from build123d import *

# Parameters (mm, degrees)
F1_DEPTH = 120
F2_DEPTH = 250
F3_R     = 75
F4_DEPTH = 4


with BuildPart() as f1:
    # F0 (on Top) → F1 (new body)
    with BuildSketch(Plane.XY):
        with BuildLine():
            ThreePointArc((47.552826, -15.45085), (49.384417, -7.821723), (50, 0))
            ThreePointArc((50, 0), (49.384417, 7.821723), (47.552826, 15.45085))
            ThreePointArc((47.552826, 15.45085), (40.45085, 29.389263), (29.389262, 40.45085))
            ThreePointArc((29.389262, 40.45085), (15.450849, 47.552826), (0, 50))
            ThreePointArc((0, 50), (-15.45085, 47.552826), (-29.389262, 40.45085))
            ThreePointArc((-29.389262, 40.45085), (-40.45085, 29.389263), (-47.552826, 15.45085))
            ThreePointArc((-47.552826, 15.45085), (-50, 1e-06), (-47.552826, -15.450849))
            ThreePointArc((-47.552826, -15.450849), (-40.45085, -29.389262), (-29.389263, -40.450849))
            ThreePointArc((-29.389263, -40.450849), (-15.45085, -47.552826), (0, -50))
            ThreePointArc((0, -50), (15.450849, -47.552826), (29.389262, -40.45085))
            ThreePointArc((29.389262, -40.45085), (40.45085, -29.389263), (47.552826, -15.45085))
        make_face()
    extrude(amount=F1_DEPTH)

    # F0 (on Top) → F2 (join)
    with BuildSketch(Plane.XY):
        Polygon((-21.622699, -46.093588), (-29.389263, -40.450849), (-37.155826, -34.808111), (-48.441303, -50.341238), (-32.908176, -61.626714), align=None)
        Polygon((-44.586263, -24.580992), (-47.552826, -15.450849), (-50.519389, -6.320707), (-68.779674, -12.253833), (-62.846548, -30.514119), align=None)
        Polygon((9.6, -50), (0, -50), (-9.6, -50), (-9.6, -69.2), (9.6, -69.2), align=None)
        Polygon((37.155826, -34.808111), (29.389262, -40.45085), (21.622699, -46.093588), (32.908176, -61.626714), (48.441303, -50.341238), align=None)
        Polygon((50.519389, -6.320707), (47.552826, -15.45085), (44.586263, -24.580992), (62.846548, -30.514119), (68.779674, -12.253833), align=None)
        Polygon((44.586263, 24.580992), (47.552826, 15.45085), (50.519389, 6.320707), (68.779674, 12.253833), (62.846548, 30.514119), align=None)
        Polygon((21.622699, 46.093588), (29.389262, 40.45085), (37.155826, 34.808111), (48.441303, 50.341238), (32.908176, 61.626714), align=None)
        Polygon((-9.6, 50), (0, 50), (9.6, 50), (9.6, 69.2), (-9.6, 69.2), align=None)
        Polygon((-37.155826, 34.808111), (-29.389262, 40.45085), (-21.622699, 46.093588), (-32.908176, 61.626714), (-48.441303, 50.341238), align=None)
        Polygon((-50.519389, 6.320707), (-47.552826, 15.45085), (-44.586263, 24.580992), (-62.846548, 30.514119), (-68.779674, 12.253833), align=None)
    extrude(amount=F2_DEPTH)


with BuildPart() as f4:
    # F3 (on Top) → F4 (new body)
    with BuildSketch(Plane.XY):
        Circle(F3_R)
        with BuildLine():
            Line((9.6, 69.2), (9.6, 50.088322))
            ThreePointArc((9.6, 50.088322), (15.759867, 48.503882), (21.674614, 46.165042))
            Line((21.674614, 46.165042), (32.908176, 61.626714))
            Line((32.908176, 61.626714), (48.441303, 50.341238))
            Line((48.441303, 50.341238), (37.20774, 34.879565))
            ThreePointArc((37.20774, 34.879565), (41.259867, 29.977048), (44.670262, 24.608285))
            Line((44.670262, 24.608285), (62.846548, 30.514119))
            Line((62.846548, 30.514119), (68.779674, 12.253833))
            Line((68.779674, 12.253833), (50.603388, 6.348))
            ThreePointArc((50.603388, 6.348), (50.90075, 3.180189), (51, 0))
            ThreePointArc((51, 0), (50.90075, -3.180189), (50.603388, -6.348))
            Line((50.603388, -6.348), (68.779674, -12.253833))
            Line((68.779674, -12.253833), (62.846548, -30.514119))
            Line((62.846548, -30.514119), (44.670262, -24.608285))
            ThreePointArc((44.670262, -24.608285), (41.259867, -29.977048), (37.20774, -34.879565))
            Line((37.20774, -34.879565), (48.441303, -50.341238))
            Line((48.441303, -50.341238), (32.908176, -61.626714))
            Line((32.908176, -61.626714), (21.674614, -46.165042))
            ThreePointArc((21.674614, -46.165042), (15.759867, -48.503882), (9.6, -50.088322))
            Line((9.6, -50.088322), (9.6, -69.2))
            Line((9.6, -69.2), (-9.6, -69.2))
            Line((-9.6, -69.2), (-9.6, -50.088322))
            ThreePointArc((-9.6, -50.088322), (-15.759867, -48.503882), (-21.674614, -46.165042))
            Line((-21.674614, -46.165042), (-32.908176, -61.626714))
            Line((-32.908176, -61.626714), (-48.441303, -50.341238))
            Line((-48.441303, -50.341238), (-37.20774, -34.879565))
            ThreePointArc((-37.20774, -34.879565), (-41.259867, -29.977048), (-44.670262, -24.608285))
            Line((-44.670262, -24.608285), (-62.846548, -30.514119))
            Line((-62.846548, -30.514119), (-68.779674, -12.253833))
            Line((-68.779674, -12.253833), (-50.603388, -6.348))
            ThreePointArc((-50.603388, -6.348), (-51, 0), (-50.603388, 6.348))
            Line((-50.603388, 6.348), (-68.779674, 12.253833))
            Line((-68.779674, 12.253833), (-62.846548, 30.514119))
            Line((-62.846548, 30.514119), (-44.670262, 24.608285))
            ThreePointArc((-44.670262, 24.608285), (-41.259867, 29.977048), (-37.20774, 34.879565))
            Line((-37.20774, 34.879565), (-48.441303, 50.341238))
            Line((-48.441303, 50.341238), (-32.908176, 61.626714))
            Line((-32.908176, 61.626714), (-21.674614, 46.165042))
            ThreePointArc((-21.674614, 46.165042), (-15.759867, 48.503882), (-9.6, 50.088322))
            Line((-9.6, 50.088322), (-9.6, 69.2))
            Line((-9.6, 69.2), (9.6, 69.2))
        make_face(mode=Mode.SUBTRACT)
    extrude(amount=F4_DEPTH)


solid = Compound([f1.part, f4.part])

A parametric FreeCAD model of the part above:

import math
import FreeCAD as App
import Part
import Sketcher
Q = App.Units.Quantity

doc = App.newDocument("Part")
body = doc.addObject("PartDesign::Body", "Body")
body.AllowCompound = True

sketch1 = body.newObject("Sketcher::SketchObject", "Sketch")
sketch1.AttachmentSupport = (doc.getObject("XY_Plane"), [""])
sketch1.MapMode = "FlatFace"
sketch1.addGeometry([
    Part.ArcOfCircle(Part.Circle(App.Vector(0, 0, 0), App.Vector(0, 0, 1), 50), math.radians(-18), math.radians(0)),
    Part.ArcOfCircle(Part.Circle(App.Vector(0, 0, 0), App.Vector(0, 0, 1), 50), math.radians(0), math.radians(18)),
    Part.ArcOfCircle(Part.Circle(App.Vector(0, 0, 0), App.Vector(0, 0, 1), 50), math.radians(18), math.radians(54)),
    Part.ArcOfCircle(Part.Circle(App.Vector(0, 0, 0), App.Vector(0, 0, 1), 50), math.radians(54), math.radians(90)),
    Part.ArcOfCircle(Part.Circle(App.Vector(0, 0, 0), App.Vector(0, 0, 1), 50), math.radians(90), math.radians(126)),
    Part.ArcOfCircle(Part.Circle(App.Vector(0, 0, 0), App.Vector(0, 0, 1), 50), math.radians(126), math.radians(162)),
    Part.ArcOfCircle(Part.Circle(App.Vector(0, 0, 0), App.Vector(0, 0, 1), 50), math.radians(162), math.radians(198)),
    Part.ArcOfCircle(Part.Circle(App.Vector(0, 0, 0), App.Vector(0, 0, 1), 50), math.radians(-162), math.radians(-126)),
    Part.ArcOfCircle(Part.Circle(App.Vector(0, 0, 0), App.Vector(0, 0, 1), 50), math.radians(-126), math.radians(-90)),
    Part.ArcOfCircle(Part.Circle(App.Vector(0, 0, 0), App.Vector(0, 0, 1), 50), math.radians(-90), math.radians(-54)),
    Part.ArcOfCircle(Part.Circle(App.Vector(0, 0, 0), App.Vector(0, 0, 1), 50), math.radians(-54), math.radians(-18)),
], False)
sketch1.addConstraint([
    Sketcher.Constraint("Tangent", 0, 2, 1, 1),
    Sketcher.Constraint("Tangent", 1, 2, 2, 1),
    Sketcher.Constraint("Tangent", 2, 2, 3, 1),
    Sketcher.Constraint("Tangent", 3, 2, 4, 1),
    Sketcher.Constraint("Tangent", 4, 2, 5, 1),
    Sketcher.Constraint("Tangent", 5, 2, 6, 1),
    Sketcher.Constraint("Tangent", 6, 2, 7, 1),
    Sketcher.Constraint("Tangent", 7, 2, 8, 1),
    Sketcher.Constraint("Tangent", 8, 2, 9, 1),
    Sketcher.Constraint("Tangent", 9, 2, 10, 1),
    Sketcher.Constraint("Tangent", 10, 2, 0, 1),
    Sketcher.Constraint("Coincident", 2, 3, -1, 1),
    Sketcher.Constraint("Coincident", 4, 3, -1, 1),
    Sketcher.Constraint("Coincident", 6, 3, -1, 1),
    Sketcher.Constraint("Coincident", 8, 3, -1, 1),
    Sketcher.Constraint("Coincident", 10, 3, -1, 1),
    Sketcher.Constraint("PointOnObject", 0, 2, -1),
    Sketcher.Constraint("PointOnObject", 3, 2, -2),
    Sketcher.Constraint("PointOnObject", 8, 2, -2),
    Sketcher.Constraint("Horizontal", 2, 2, 4, 2),
    Sketcher.Constraint("Horizontal", 1, 2, 5, 2),
    Sketcher.Constraint("Horizontal", 7, 2, 9, 2),
    Sketcher.Constraint("Horizontal", 6, 2, 10, 2),
    Sketcher.Constraint("Vertical", 5, 2, 6, 2),
    Sketcher.Constraint("Vertical", 4, 2, 7, 2),
    Sketcher.Constraint("Radius", 3, 50.0),
    Sketcher.Constraint("DistanceY", 1, 2, 2, 2, 25.0),
    Sketcher.Constraint("DistanceY", 6, 2, 5, 2, 30.901699),
])
pad1 = body.newObject("PartDesign::Pad", "Pad")
pad1.Profile = sketch1
pad1.Length = 120

sketch2 = body.newObject("Sketcher::SketchObject", "Sketch001")
sketch2.AttachmentSupport = (doc.getObject("XY_Plane"), [""])
sketch2.MapMode = "FlatFace"
sketch2.addGeometry([
    Part.LineSegment(App.Vector(-22, -46, 0), App.Vector(-29, -40, 0)),
    Part.LineSegment(App.Vector(-29, -40, 0), App.Vector(-37, -35, 0)),
    Part.LineSegment(App.Vector(-37, -35, 0), App.Vector(-48, -50, 0)),
    Part.LineSegment(App.Vector(-48, -50, 0), App.Vector(-33, -62, 0)),
    Part.LineSegment(App.Vector(-33, -62, 0), App.Vector(-22, -46, 0)),
    Part.LineSegment(App.Vector(-45, -25, 0), App.Vector(-48, -15, 0)),
    Part.LineSegment(App.Vector(-48, -15, 0), App.Vector(-51, -6, 0)),
    Part.LineSegment(App.Vector(-51, -6, 0), App.Vector(-69, -12, 0)),
    Part.LineSegment(App.Vector(-69, -12, 0), App.Vector(-63, -31, 0)),
    Part.LineSegment(App.Vector(-63, -31, 0), App.Vector(-45, -25, 0)),
    Part.LineSegment(App.Vector(10, -50, 0), App.Vector(-10, -50, 0)),
    Part.LineSegment(App.Vector(-10, -50, 0), App.Vector(-10, -69, 0)),
    Part.LineSegment(App.Vector(-10, -69, 0), App.Vector(10, -69, 0)),
    Part.LineSegment(App.Vector(10, -69, 0), App.Vector(10, -50, 0)),
    Part.LineSegment(App.Vector(37, -35, 0), App.Vector(29, -40, 0)),
    Part.LineSegment(App.Vector(29, -40, 0), App.Vector(22, -46, 0)),
    Part.LineSegment(App.Vector(22, -46, 0), App.Vector(33, -62, 0)),
    Part.LineSegment(App.Vector(33, -62, 0), App.Vector(48, -50, 0)),
    Part.LineSegment(App.Vector(48, -50, 0), App.Vector(37, -35, 0)),
    Part.LineSegment(App.Vector(51, -6, 0), App.Vector(48, -15, 0)),
    Part.LineSegment(App.Vector(48, -15, 0), App.Vector(45, -25, 0)),
    Part.LineSegment(App.Vector(45, -25, 0), App.Vector(63, -31, 0)),
    Part.LineSegment(App.Vector(63, -31, 0), App.Vector(69, -12, 0)),
    Part.LineSegment(App.Vector(69, -12, 0), App.Vector(51, -6, 0)),
    Part.LineSegment(App.Vector(45, 25, 0), App.Vector(48, 15, 0)),
    Part.LineSegment(App.Vector(48, 15, 0), App.Vector(51, 6, 0)),
    Part.LineSegment(App.Vector(51, 6, 0), App.Vector(69, 12, 0)),
    Part.LineSegment(App.Vector(69, 12, 0), App.Vector(63, 31, 0)),
    Part.LineSegment(App.Vector(63, 31, 0), App.Vector(45, 25, 0)),
    Part.LineSegment(App.Vector(22, 46, 0), App.Vector(29, 40, 0)),
    Part.LineSegment(App.Vector(29, 40, 0), App.Vector(37, 35, 0)),
    Part.LineSegment(App.Vector(37, 35, 0), App.Vector(48, 50, 0)),
    Part.LineSegment(App.Vector(48, 50, 0), App.Vector(33, 62, 0)),
    Part.LineSegment(App.Vector(33, 62, 0), App.Vector(22, 46, 0)),
    Part.LineSegment(App.Vector(-10, 50, 0), App.Vector(10, 50, 0)),
    Part.LineSegment(App.Vector(10, 50, 0), App.Vector(10, 69, 0)),
    Part.LineSegment(App.Vector(10, 69, 0), App.Vector(-10, 69, 0)),
    Part.LineSegment(App.Vector(-10, 69, 0), App.Vector(-10, 50, 0)),
    Part.LineSegment(App.Vector(-37, 35, 0), App.Vector(-29, 40, 0)),
    Part.LineSegment(App.Vector(-29, 40, 0), App.Vector(-22, 46, 0)),
    Part.LineSegment(App.Vector(-22, 46, 0), App.Vector(-33, 62, 0)),
    Part.LineSegment(App.Vector(-33, 62, 0), App.Vector(-48, 50, 0)),
    Part.LineSegment(App.Vector(-48, 50, 0), App.Vector(-37, 35, 0)),
    Part.LineSegment(App.Vector(-51, 6, 0), App.Vector(-48, 15, 0)),
    Part.LineSegment(App.Vector(-48, 15, 0), App.Vector(-45, 25, 0)),
    Part.LineSegment(App.Vector(-45, 25, 0), App.Vector(-63, 31, 0)),
    Part.LineSegment(App.Vector(-63, 31, 0), App.Vector(-69, 12, 0)),
    Part.LineSegment(App.Vector(-69, 12, 0), App.Vector(-51, 6, 0)),
], False)
sketch2.addConstraint([
    Sketcher.Constraint("Coincident", 0, 2, 1, 1),
    Sketcher.Constraint("Coincident", 1, 2, 2, 1),
    Sketcher.Constraint("Coincident", 2, 2, 3, 1),
    Sketcher.Constraint("Coincident", 3, 2, 4, 1),
    Sketcher.Constraint("Coincident", 4, 2, 0, 1),
    Sketcher.Constraint("Coincident", 5, 2, 6, 1),
    Sketcher.Constraint("Coincident", 6, 2, 7, 1),
    Sketcher.Constraint("Coincident", 7, 2, 8, 1),
    Sketcher.Constraint("Coincident", 8, 2, 9, 1),
    Sketcher.Constraint("Coincident", 9, 2, 5, 1),
    Sketcher.Constraint("Coincident", 10, 2, 11, 1),
    Sketcher.Constraint("Coincident", 11, 2, 12, 1),
    Sketcher.Constraint("Coincident", 12, 2, 13, 1),
    Sketcher.Constraint("Coincident", 13, 2, 10, 1),
    Sketcher.Constraint("Coincident", 14, 2, 15, 1),
    Sketcher.Constraint("Coincident", 15, 2, 16, 1),
    Sketcher.Constraint("Coincident", 16, 2, 17, 1),
    Sketcher.Constraint("Coincident", 17, 2, 18, 1),
    Sketcher.Constraint("Coincident", 18, 2, 14, 1),
    Sketcher.Constraint("Coincident", 19, 2, 20, 1),
    Sketcher.Constraint("Coincident", 20, 2, 21, 1),
    Sketcher.Constraint("Coincident", 21, 2, 22, 1),
    Sketcher.Constraint("Coincident", 22, 2, 23, 1),
    Sketcher.Constraint("Coincident", 23, 2, 19, 1),
    Sketcher.Constraint("Coincident", 24, 2, 25, 1),
    Sketcher.Constraint("Coincident", 25, 2, 26, 1),
    Sketcher.Constraint("Coincident", 26, 2, 27, 1),
    Sketcher.Constraint("Coincident", 27, 2, 28, 1),
    Sketcher.Constraint("Coincident", 28, 2, 24, 1),
    Sketcher.Constraint("Coincident", 29, 2, 30, 1),
    Sketcher.Constraint("Coincident", 30, 2, 31, 1),
    Sketcher.Constraint("Coincident", 31, 2, 32, 1),
    Sketcher.Constraint("Coincident", 32, 2, 33, 1),
    Sketcher.Constraint("Coincident", 33, 2, 29, 1),
    Sketcher.Constraint("Coincident", 34, 2, 35, 1),
    Sketcher.Constraint("Coincident", 35, 2, 36, 1),
    Sketcher.Constraint("Coincident", 36, 2, 37, 1),
    Sketcher.Constraint("Coincident", 37, 2, 34, 1),
    Sketcher.Constraint("Coincident", 38, 2, 39, 1),
    Sketcher.Constraint("Coincident", 39, 2, 40, 1),
    Sketcher.Constraint("Coincident", 40, 2, 41, 1),
    Sketcher.Constraint("Coincident", 41, 2, 42, 1),
    Sketcher.Constraint("Coincident", 42, 2, 38, 1),
    Sketcher.Constraint("Coincident", 43, 2, 44, 1),
    Sketcher.Constraint("Coincident", 44, 2, 45, 1),
    Sketcher.Constraint("Coincident", 45, 2, 46, 1),
    Sketcher.Constraint("Coincident", 46, 2, 47, 1),
    Sketcher.Constraint("Coincident", 47, 2, 43, 1),
    Sketcher.Constraint("Horizontal", 10),
    Sketcher.Constraint("Vertical", 11),
    Sketcher.Constraint("Horizontal", 12),
    Sketcher.Constraint("Vertical", 13),
    Sketcher.Constraint("Horizontal", 34),
    Sketcher.Constraint("Vertical", 35),
    Sketcher.Constraint("Horizontal", 36),
    Sketcher.Constraint("Vertical", 37),
    Sketcher.Constraint("Symmetric", 5, 2, 24, 2, -1, 1),
    Sketcher.Constraint("Symmetric", 6, 2, 25, 2, -1, 1),
    Sketcher.Constraint("Symmetric", 7, 2, 26, 2, -1, 1),
    Sketcher.Constraint("Symmetric", 8, 2, 27, 2, -1, 1),
    Sketcher.Constraint("Symmetric", 9, 2, 28, 2, -1, 1),
    Sketcher.Constraint("Symmetric", 0, 2, 29, 2, -1, 1),
    Sketcher.Constraint("Symmetric", 1, 2, 30, 2, -1, 1),
    Sketcher.Constraint("Symmetric", 2, 2, 31, 2, -1, 1),
    Sketcher.Constraint("Symmetric", 3, 2, 32, 2, -1, 1),
    Sketcher.Constraint("Symmetric", 4, 2, 33, 2, -1, 1),
    Sketcher.Constraint("Symmetric", 10, 2, 34, 2, -1, 1),
    Sketcher.Constraint("Symmetric", 12, 2, 36, 2, -1, 1),
    Sketcher.Constraint("Symmetric", 14, 2, 38, 2, -1, 1),
    Sketcher.Constraint("Symmetric", 15, 2, 39, 2, -1, 1),
    Sketcher.Constraint("Symmetric", 16, 2, 40, 2, -1, 1),
    Sketcher.Constraint("Symmetric", 17, 2, 41, 2, -1, 1),
    Sketcher.Constraint("Symmetric", 18, 2, 42, 2, -1, 1),
    Sketcher.Constraint("Symmetric", 19, 2, 43, 2, -1, 1),
    Sketcher.Constraint("Symmetric", 20, 2, 44, 2, -1, 1),
    Sketcher.Constraint("Symmetric", 21, 2, 45, 2, -1, 1),
    Sketcher.Constraint("Symmetric", 22, 2, 46, 2, -1, 1),
    Sketcher.Constraint("Symmetric", 23, 2, 47, 2, -1, 1),
    Sketcher.Constraint("Symmetric", 0, 2, 14, 2, -2),
    Sketcher.Constraint("Symmetric", 4, 2, 15, 2, -2),
    Sketcher.Constraint("Symmetric", 3, 2, 16, 2, -2),
    Sketcher.Constraint("Symmetric", 2, 2, 17, 2, -2),
    Sketcher.Constraint("Symmetric", 1, 2, 18, 2, -2),
    Sketcher.Constraint("Symmetric", 5, 2, 19, 2, -2),
    Sketcher.Constraint("Symmetric", 9, 2, 20, 2, -2),
    Sketcher.Constraint("Symmetric", 8, 2, 21, 2, -2),
    Sketcher.Constraint("Symmetric", 7, 2, 22, 2, -2),
    Sketcher.Constraint("Symmetric", 6, 2, 23, 2, -2),
    Sketcher.Constraint("Parallel", 0, 1),
    Sketcher.Constraint("Perpendicular", 1, 2),
    Sketcher.Constraint("Perpendicular", 2, 3),
    Sketcher.Constraint("Perpendicular", 3, 4),
    Sketcher.Constraint("Parallel", 5, 6),
    Sketcher.Constraint("Perpendicular", 6, 7),
    Sketcher.Constraint("Perpendicular", 7, 8),
    Sketcher.Constraint("Perpendicular", 8, 9),
    Sketcher.Constraint("Vertical", 13, 2, 34, 2),
    Sketcher.Constraint("Equal", 36, 11),
    Sketcher.Constraint("Equal", 0, 1),
    Sketcher.Constraint("Equal", 2, 3),
    Sketcher.Constraint("Equal", 1, 5),
    Sketcher.Constraint("Equal", 5, 6),
    Sketcher.Constraint("Equal", 4, 7),
    Sketcher.Constraint("Angle", 0, Q("144 deg")),
    Sketcher.Constraint("Angle", 5, Q("107.999998 deg")),
    Sketcher.Constraint("DistanceX", 10, 2, 10, 1, 19.2),
    Sketcher.Constraint("DistanceY", 10, 2, -1, 1, 50.0),
    Sketcher.Constraint("DistanceY", 0, 2, 5, 2, 25.0),
    Sketcher.Constraint("Distance", 0, 9.600001),
    Sketcher.Constraint("DistanceX", 5, 2, 1, 2, 10.397),
    Sketcher.Constraint("DistanceX", 4, 2, -1, 1, 21.622699),
    Sketcher.Constraint("DistanceY", 19, 2, 24, 2, 30.9017),
])
pad2 = body.newObject("PartDesign::Pad", "Pad001")
pad2.Profile = sketch2
pad2.Length = 250
body2 = doc.addObject("PartDesign::Body", "Body001")

sketch3 = body2.newObject("Sketcher::SketchObject", "Sketch002")
sketch3.AttachmentSupport = (doc.getObject("XY_Plane001"), [""])
sketch3.MapMode = "FlatFace"
sketch3.addGeometry([
    Part.Circle(App.Vector(0, 0, 0), App.Vector(0, 0, 1), 75),
    Part.LineSegment(App.Vector(-9.6, 69.2, 0), App.Vector(9.6, 69.2, 0)),
    Part.LineSegment(App.Vector(9.6, 69.2, 0), App.Vector(9.6, 50.088322, 0)),
    Part.ArcOfCircle(Part.Circle(App.Vector(-0.000008, -0.000025, 0), App.Vector(0, 0, 1), 51.000026), math.radians(64.849819), math.radians(79.15018)),
    Part.LineSegment(App.Vector(21.674614, 46.165042, 0), App.Vector(32.908176, 61.626714, 0)),
    Part.LineSegment(App.Vector(32.908176, 61.626714, 0), App.Vector(48.441303, 50.341238, 0)),
    Part.LineSegment(App.Vector(48.441303, 50.341238, 0), App.Vector(37.20774, 34.879565, 0)),
    Part.ArcOfCircle(Part.Circle(App.Vector(0.000049, 0.000034, 0), App.Vector(0, 0, 1), 50.99994), math.radians(28.849808), math.radians(43.150194)),
    Part.LineSegment(App.Vector(44.670262, 24.608285, 0), App.Vector(62.846548, 30.514119, 0)),
    Part.LineSegment(App.Vector(62.846548, 30.514119, 0), App.Vector(68.779674, 12.253833, 0)),
    Part.LineSegment(App.Vector(68.779674, 12.253833, 0), App.Vector(50.603388, 6.348, 0)),
    Part.ArcOfCircle(Part.Circle(App.Vector(-0.00019, -0.000013, 0), App.Vector(0, 0, 1), 51.00019), math.radians(0.000015), math.radians(7.150172)),
    Part.ArcOfCircle(Part.Circle(App.Vector(-0.00019, 0.000013, 0), App.Vector(0, 0, 1), 51.00019), math.radians(-7.150172), math.radians(-0.000015)),
    Part.LineSegment(App.Vector(50.603388, -6.348, 0), App.Vector(68.779674, -12.253833, 0)),
    Part.LineSegment(App.Vector(68.779674, -12.253833, 0), App.Vector(62.846548, -30.514119, 0)),
    Part.LineSegment(App.Vector(62.846548, -30.514119, 0), App.Vector(44.670262, -24.608285, 0)),
    Part.ArcOfCircle(Part.Circle(App.Vector(0.000049, -0.000034, 0), App.Vector(0, 0, 1), 50.99994), math.radians(-43.150194), math.radians(-28.849808)),
    Part.LineSegment(App.Vector(37.20774, -34.879565, 0), App.Vector(48.441303, -50.341238, 0)),
    Part.LineSegment(App.Vector(48.441303, -50.341238, 0), App.Vector(32.908176, -61.626714, 0)),
    Part.LineSegment(App.Vector(32.908176, -61.626714, 0), App.Vector(21.674614, -46.165042, 0)),
    Part.ArcOfCircle(Part.Circle(App.Vector(-0.000008, 0.000025, 0), App.Vector(0, 0, 1), 51.000026), math.radians(-79.15018), math.radians(-64.849819)),
    Part.LineSegment(App.Vector(9.6, -50.088322, 0), App.Vector(9.6, -69.2, 0)),
    Part.LineSegment(App.Vector(9.6, -69.2, 0), App.Vector(-9.6, -69.2, 0)),
    Part.LineSegment(App.Vector(-9.6, -69.2, 0), App.Vector(-9.6, -50.088322, 0)),
    Part.ArcOfCircle(Part.Circle(App.Vector(0.000008, 0.000025, 0), App.Vector(0, 0, 1), 51.000026), math.radians(-115.150181), math.radians(-100.84982)),
    Part.LineSegment(App.Vector(-21.674614, -46.165042, 0), App.Vector(-32.908176, -61.626714, 0)),
    Part.LineSegment(App.Vector(-32.908176, -61.626714, 0), App.Vector(-48.441303, -50.341238, 0)),
    Part.LineSegment(App.Vector(-48.441303, -50.341238, 0), App.Vector(-37.20774, -34.879565, 0)),
    Part.ArcOfCircle(Part.Circle(App.Vector(-0.000049, -0.000034, 0), App.Vector(0, 0, 1), 50.99994), math.radians(-151.150192), math.radians(-136.849806)),
    Part.LineSegment(App.Vector(-44.670262, -24.608285, 0), App.Vector(-62.846548, -30.514119, 0)),
    Part.LineSegment(App.Vector(-62.846548, -30.514119, 0), App.Vector(-68.779674, -12.253833, 0)),
    Part.LineSegment(App.Vector(-68.779674, -12.253833, 0), App.Vector(-50.603388, -6.348, 0)),
    Part.ArcOfCircle(Part.Circle(App.Vector(-0.000024, 0, 0), App.Vector(0, 0, 1), 50.999976), math.radians(172.849813), math.radians(187.150187)),
    Part.LineSegment(App.Vector(-50.603388, 6.348, 0), App.Vector(-68.779674, 12.253833, 0)),
    Part.LineSegment(App.Vector(-68.779674, 12.253833, 0), App.Vector(-62.846548, 30.514119, 0)),
    Part.LineSegment(App.Vector(-62.846548, 30.514119, 0), App.Vector(-44.670262, 24.608285, 0)),
    Part.ArcOfCircle(Part.Circle(App.Vector(-0.000049, 0.000034, 0), App.Vector(0, 0, 1), 50.99994), math.radians(136.849806), math.radians(151.150192)),
    Part.LineSegment(App.Vector(-37.20774, 34.879565, 0), App.Vector(-48.441303, 50.341238, 0)),
    Part.LineSegment(App.Vector(-48.441303, 50.341238, 0), App.Vector(-32.908176, 61.626714, 0)),
    Part.LineSegment(App.Vector(-32.908176, 61.626714, 0), App.Vector(-21.674614, 46.165042, 0)),
    Part.ArcOfCircle(Part.Circle(App.Vector(0.000008, -0.000025, 0), App.Vector(0, 0, 1), 51.000026), math.radians(100.84982), math.radians(115.150181)),
    Part.LineSegment(App.Vector(-9.6, 50.088322, 0), App.Vector(-9.6, 69.2, 0)),
], False)
sketch3.addConstraint([
    Sketcher.Constraint("Coincident", 1, 2, 2, 1),
    Sketcher.Constraint("Coincident", 2, 2, 3, 2),
    Sketcher.Constraint("Coincident", 3, 1, 4, 1),
    Sketcher.Constraint("Coincident", 4, 2, 5, 1),
    Sketcher.Constraint("Coincident", 5, 2, 6, 1),
    Sketcher.Constraint("Coincident", 6, 2, 7, 2),
    Sketcher.Constraint("Coincident", 7, 1, 8, 1),
    Sketcher.Constraint("Coincident", 8, 2, 9, 1),
    Sketcher.Constraint("Coincident", 9, 2, 10, 1),
    Sketcher.Constraint("Coincident", 10, 2, 11, 2),
    Sketcher.Constraint("Tangent", 11, 1, 12, 2),
    Sketcher.Constraint("Coincident", 12, 1, 13, 1),
    Sketcher.Constraint("Coincident", 13, 2, 14, 1),
    Sketcher.Constraint("Coincident", 14, 2, 15, 1),
    Sketcher.Constraint("Coincident", 15, 2, 16, 2),
    Sketcher.Constraint("Coincident", 16, 1, 17, 1),
    Sketcher.Constraint("Coincident", 17, 2, 18, 1),
    Sketcher.Constraint("Coincident", 18, 2, 19, 1),
    Sketcher.Constraint("Coincident", 19, 2, 20, 2),
    Sketcher.Constraint("Coincident", 20, 1, 21, 1),
    Sketcher.Constraint("Coincident", 21, 2, 22, 1),
    Sketcher.Constraint("Coincident", 22, 2, 23, 1),
    Sketcher.Constraint("Coincident", 23, 2, 24, 2),
    Sketcher.Constraint("Coincident", 24, 1, 25, 1),
    Sketcher.Constraint("Coincident", 25, 2, 26, 1),
    Sketcher.Constraint("Coincident", 26, 2, 27, 1),
    Sketcher.Constraint("Coincident", 27, 2, 28, 2),
    Sketcher.Constraint("Coincident", 28, 1, 29, 1),
    Sketcher.Constraint("Coincident", 29, 2, 30, 1),
    Sketcher.Constraint("Coincident", 30, 2, 31, 1),
    Sketcher.Constraint("Coincident", 31, 2, 32, 2),
    Sketcher.Constraint("Coincident", 32, 1, 33, 1),
    Sketcher.Constraint("Coincident", 33, 2, 34, 1),
    Sketcher.Constraint("Coincident", 34, 2, 35, 1),
    Sketcher.Constraint("Coincident", 35, 2, 36, 2),
    Sketcher.Constraint("Coincident", 36, 1, 37, 1),
    Sketcher.Constraint("Coincident", 37, 2, 38, 1),
    Sketcher.Constraint("Coincident", 38, 2, 39, 1),
    Sketcher.Constraint("Coincident", 39, 2, 40, 2),
    Sketcher.Constraint("Coincident", 40, 1, 41, 1),
    Sketcher.Constraint("Coincident", 41, 2, 1, 1),
    Sketcher.Constraint("Horizontal", 1),
    Sketcher.Constraint("Vertical", 2),
    Sketcher.Constraint("Vertical", 21),
    Sketcher.Constraint("Horizontal", 22),
    Sketcher.Constraint("Vertical", 23),
    Sketcher.Constraint("Vertical", 41),
    Sketcher.Constraint("Coincident", 0, 3, -1, 1),
    Sketcher.Constraint("Equal", 11, 12),
    Sketcher.Constraint("Equal", 7, 16),
    Sketcher.Constraint("Equal", 3, 20),
    Sketcher.Constraint("Equal", 20, 24),
    Sketcher.Constraint("Equal", 16, 28),
    Sketcher.Constraint("Equal", 28, 36),
    Sketcher.Constraint("Equal", 24, 40),
    Sketcher.Constraint("Symmetric", 3, 3, 24, 3, -1, 1),
    Sketcher.Constraint("Symmetric", 7, 3, 28, 3, -1, 1),
    Sketcher.Constraint("Symmetric", 16, 3, 36, 3, -1, 1),
    Sketcher.Constraint("Symmetric", 20, 3, 40, 3, -1, 1),
    Sketcher.Constraint("Symmetric", 1, 2, 22, 2, -1, 1),
    Sketcher.Constraint("Symmetric", 4, 2, 25, 2, -1, 1),
    Sketcher.Constraint("Symmetric", 5, 2, 26, 2, -1, 1),
    Sketcher.Constraint("Symmetric", 8, 2, 29, 2, -1, 1),
    Sketcher.Constraint("Symmetric", 9, 2, 30, 2, -1, 1),
    Sketcher.Constraint("Symmetric", 10, 2, 31, 2, -1, 1),
    Sketcher.Constraint("Symmetric", 12, 1, 32, 1, -1, 1),
    Sketcher.Constraint("Symmetric", 13, 2, 33, 2, -1, 1),
    Sketcher.Constraint("Symmetric", 14, 2, 34, 2, -1, 1),
    Sketcher.Constraint("Symmetric", 17, 2, 37, 2, -1, 1),
    Sketcher.Constraint("Symmetric", 18, 2, 38, 2, -1, 1),
    Sketcher.Constraint("Symmetric", 20, 3, 24, 3, -2),
    Sketcher.Constraint("Symmetric", 16, 3, 28, 3, -2),
    Sketcher.Constraint("Symmetric", 18, 2, 25, 2, -2),
    Sketcher.Constraint("Symmetric", 17, 2, 26, 2, -2),
    Sketcher.Constraint("Symmetric", 14, 2, 29, 2, -2),
    Sketcher.Constraint("Symmetric", 13, 2, 30, 2, -2),
    Sketcher.Constraint("Symmetric", 12, 1, 31, 2, -2),
    Sketcher.Constraint("PointOnObject", 11, 1, -1),
    Sketcher.Constraint("Perpendicular", 4, 5),
    Sketcher.Constraint("Perpendicular", 5, 6),
    Sketcher.Constraint("Perpendicular", 8, 9),
    Sketcher.Constraint("Perpendicular", 9, 10),
    Sketcher.Constraint("Perpendicular", 14, 15),
    Sketcher.Constraint("Perpendicular", 17, 18),
    Sketcher.Constraint("Perpendicular", 18, 19),
    Sketcher.Constraint("Parallel", 6, 25),
    Sketcher.Constraint("Perpendicular", 26, 27),
    Sketcher.Constraint("Parallel", 10, 29),
    Sketcher.Constraint("Perpendicular", 34, 35),
    Sketcher.Constraint("Parallel", 19, 37),
    Sketcher.Constraint("Perpendicular", 38, 39),
    Sketcher.Constraint("Horizontal", 20, 1, 23, 2),
    Sketcher.Constraint("Horizontal", 2, 2, 40, 1),
    Sketcher.Constraint("Equal", 4, 6),
    Sketcher.Constraint("Equal", 6, 8),
    Sketcher.Constraint("Equal", 5, 9),
    Sketcher.Constraint("Equal", 8, 10),
    Sketcher.Constraint("Diameter", 0, 150.0),
    Sketcher.Constraint("Angle", 4, Q("54.000001 deg")),
    Sketcher.Constraint("Angle", 8, Q("18.000002 deg")),
    Sketcher.Constraint("DistanceX", 1, 1, 1, 2, 19.2),
    Sketcher.Constraint("DistanceX", -1, 1, 11, 1, 51.0),
    Sketcher.Constraint("Distance", 5, 19.2),
    Sketcher.Constraint("DistanceY", -1, 1, 1, 2, 69.2),
    Sketcher.Constraint("Radius", 7, 50.99994),
    Sketcher.Constraint("Radius", 11, 51.00019),
    Sketcher.Constraint("DistanceY", -1, 1, 10, 2, 6.348),
    Sketcher.Constraint("Radius", 3, 51.000026),
    Sketcher.Constraint("Radius", 32, 50.999976),
    Sketcher.Constraint("DistanceY", 2, 2, 2, 1, 19.111678),
    Sketcher.Constraint("Distance", 6, 19.111679),
    Sketcher.Constraint("DistanceX", -1, 1, 6, 2, 37.20774),
    Sketcher.Constraint("DistanceX", 11, 3, 7, 3, 0.00024),
])
pad3 = body2.newObject("PartDesign::Pad", "Pad002")
pad3.Profile = sketch3
pad3.Length = 4

doc.recompute()
